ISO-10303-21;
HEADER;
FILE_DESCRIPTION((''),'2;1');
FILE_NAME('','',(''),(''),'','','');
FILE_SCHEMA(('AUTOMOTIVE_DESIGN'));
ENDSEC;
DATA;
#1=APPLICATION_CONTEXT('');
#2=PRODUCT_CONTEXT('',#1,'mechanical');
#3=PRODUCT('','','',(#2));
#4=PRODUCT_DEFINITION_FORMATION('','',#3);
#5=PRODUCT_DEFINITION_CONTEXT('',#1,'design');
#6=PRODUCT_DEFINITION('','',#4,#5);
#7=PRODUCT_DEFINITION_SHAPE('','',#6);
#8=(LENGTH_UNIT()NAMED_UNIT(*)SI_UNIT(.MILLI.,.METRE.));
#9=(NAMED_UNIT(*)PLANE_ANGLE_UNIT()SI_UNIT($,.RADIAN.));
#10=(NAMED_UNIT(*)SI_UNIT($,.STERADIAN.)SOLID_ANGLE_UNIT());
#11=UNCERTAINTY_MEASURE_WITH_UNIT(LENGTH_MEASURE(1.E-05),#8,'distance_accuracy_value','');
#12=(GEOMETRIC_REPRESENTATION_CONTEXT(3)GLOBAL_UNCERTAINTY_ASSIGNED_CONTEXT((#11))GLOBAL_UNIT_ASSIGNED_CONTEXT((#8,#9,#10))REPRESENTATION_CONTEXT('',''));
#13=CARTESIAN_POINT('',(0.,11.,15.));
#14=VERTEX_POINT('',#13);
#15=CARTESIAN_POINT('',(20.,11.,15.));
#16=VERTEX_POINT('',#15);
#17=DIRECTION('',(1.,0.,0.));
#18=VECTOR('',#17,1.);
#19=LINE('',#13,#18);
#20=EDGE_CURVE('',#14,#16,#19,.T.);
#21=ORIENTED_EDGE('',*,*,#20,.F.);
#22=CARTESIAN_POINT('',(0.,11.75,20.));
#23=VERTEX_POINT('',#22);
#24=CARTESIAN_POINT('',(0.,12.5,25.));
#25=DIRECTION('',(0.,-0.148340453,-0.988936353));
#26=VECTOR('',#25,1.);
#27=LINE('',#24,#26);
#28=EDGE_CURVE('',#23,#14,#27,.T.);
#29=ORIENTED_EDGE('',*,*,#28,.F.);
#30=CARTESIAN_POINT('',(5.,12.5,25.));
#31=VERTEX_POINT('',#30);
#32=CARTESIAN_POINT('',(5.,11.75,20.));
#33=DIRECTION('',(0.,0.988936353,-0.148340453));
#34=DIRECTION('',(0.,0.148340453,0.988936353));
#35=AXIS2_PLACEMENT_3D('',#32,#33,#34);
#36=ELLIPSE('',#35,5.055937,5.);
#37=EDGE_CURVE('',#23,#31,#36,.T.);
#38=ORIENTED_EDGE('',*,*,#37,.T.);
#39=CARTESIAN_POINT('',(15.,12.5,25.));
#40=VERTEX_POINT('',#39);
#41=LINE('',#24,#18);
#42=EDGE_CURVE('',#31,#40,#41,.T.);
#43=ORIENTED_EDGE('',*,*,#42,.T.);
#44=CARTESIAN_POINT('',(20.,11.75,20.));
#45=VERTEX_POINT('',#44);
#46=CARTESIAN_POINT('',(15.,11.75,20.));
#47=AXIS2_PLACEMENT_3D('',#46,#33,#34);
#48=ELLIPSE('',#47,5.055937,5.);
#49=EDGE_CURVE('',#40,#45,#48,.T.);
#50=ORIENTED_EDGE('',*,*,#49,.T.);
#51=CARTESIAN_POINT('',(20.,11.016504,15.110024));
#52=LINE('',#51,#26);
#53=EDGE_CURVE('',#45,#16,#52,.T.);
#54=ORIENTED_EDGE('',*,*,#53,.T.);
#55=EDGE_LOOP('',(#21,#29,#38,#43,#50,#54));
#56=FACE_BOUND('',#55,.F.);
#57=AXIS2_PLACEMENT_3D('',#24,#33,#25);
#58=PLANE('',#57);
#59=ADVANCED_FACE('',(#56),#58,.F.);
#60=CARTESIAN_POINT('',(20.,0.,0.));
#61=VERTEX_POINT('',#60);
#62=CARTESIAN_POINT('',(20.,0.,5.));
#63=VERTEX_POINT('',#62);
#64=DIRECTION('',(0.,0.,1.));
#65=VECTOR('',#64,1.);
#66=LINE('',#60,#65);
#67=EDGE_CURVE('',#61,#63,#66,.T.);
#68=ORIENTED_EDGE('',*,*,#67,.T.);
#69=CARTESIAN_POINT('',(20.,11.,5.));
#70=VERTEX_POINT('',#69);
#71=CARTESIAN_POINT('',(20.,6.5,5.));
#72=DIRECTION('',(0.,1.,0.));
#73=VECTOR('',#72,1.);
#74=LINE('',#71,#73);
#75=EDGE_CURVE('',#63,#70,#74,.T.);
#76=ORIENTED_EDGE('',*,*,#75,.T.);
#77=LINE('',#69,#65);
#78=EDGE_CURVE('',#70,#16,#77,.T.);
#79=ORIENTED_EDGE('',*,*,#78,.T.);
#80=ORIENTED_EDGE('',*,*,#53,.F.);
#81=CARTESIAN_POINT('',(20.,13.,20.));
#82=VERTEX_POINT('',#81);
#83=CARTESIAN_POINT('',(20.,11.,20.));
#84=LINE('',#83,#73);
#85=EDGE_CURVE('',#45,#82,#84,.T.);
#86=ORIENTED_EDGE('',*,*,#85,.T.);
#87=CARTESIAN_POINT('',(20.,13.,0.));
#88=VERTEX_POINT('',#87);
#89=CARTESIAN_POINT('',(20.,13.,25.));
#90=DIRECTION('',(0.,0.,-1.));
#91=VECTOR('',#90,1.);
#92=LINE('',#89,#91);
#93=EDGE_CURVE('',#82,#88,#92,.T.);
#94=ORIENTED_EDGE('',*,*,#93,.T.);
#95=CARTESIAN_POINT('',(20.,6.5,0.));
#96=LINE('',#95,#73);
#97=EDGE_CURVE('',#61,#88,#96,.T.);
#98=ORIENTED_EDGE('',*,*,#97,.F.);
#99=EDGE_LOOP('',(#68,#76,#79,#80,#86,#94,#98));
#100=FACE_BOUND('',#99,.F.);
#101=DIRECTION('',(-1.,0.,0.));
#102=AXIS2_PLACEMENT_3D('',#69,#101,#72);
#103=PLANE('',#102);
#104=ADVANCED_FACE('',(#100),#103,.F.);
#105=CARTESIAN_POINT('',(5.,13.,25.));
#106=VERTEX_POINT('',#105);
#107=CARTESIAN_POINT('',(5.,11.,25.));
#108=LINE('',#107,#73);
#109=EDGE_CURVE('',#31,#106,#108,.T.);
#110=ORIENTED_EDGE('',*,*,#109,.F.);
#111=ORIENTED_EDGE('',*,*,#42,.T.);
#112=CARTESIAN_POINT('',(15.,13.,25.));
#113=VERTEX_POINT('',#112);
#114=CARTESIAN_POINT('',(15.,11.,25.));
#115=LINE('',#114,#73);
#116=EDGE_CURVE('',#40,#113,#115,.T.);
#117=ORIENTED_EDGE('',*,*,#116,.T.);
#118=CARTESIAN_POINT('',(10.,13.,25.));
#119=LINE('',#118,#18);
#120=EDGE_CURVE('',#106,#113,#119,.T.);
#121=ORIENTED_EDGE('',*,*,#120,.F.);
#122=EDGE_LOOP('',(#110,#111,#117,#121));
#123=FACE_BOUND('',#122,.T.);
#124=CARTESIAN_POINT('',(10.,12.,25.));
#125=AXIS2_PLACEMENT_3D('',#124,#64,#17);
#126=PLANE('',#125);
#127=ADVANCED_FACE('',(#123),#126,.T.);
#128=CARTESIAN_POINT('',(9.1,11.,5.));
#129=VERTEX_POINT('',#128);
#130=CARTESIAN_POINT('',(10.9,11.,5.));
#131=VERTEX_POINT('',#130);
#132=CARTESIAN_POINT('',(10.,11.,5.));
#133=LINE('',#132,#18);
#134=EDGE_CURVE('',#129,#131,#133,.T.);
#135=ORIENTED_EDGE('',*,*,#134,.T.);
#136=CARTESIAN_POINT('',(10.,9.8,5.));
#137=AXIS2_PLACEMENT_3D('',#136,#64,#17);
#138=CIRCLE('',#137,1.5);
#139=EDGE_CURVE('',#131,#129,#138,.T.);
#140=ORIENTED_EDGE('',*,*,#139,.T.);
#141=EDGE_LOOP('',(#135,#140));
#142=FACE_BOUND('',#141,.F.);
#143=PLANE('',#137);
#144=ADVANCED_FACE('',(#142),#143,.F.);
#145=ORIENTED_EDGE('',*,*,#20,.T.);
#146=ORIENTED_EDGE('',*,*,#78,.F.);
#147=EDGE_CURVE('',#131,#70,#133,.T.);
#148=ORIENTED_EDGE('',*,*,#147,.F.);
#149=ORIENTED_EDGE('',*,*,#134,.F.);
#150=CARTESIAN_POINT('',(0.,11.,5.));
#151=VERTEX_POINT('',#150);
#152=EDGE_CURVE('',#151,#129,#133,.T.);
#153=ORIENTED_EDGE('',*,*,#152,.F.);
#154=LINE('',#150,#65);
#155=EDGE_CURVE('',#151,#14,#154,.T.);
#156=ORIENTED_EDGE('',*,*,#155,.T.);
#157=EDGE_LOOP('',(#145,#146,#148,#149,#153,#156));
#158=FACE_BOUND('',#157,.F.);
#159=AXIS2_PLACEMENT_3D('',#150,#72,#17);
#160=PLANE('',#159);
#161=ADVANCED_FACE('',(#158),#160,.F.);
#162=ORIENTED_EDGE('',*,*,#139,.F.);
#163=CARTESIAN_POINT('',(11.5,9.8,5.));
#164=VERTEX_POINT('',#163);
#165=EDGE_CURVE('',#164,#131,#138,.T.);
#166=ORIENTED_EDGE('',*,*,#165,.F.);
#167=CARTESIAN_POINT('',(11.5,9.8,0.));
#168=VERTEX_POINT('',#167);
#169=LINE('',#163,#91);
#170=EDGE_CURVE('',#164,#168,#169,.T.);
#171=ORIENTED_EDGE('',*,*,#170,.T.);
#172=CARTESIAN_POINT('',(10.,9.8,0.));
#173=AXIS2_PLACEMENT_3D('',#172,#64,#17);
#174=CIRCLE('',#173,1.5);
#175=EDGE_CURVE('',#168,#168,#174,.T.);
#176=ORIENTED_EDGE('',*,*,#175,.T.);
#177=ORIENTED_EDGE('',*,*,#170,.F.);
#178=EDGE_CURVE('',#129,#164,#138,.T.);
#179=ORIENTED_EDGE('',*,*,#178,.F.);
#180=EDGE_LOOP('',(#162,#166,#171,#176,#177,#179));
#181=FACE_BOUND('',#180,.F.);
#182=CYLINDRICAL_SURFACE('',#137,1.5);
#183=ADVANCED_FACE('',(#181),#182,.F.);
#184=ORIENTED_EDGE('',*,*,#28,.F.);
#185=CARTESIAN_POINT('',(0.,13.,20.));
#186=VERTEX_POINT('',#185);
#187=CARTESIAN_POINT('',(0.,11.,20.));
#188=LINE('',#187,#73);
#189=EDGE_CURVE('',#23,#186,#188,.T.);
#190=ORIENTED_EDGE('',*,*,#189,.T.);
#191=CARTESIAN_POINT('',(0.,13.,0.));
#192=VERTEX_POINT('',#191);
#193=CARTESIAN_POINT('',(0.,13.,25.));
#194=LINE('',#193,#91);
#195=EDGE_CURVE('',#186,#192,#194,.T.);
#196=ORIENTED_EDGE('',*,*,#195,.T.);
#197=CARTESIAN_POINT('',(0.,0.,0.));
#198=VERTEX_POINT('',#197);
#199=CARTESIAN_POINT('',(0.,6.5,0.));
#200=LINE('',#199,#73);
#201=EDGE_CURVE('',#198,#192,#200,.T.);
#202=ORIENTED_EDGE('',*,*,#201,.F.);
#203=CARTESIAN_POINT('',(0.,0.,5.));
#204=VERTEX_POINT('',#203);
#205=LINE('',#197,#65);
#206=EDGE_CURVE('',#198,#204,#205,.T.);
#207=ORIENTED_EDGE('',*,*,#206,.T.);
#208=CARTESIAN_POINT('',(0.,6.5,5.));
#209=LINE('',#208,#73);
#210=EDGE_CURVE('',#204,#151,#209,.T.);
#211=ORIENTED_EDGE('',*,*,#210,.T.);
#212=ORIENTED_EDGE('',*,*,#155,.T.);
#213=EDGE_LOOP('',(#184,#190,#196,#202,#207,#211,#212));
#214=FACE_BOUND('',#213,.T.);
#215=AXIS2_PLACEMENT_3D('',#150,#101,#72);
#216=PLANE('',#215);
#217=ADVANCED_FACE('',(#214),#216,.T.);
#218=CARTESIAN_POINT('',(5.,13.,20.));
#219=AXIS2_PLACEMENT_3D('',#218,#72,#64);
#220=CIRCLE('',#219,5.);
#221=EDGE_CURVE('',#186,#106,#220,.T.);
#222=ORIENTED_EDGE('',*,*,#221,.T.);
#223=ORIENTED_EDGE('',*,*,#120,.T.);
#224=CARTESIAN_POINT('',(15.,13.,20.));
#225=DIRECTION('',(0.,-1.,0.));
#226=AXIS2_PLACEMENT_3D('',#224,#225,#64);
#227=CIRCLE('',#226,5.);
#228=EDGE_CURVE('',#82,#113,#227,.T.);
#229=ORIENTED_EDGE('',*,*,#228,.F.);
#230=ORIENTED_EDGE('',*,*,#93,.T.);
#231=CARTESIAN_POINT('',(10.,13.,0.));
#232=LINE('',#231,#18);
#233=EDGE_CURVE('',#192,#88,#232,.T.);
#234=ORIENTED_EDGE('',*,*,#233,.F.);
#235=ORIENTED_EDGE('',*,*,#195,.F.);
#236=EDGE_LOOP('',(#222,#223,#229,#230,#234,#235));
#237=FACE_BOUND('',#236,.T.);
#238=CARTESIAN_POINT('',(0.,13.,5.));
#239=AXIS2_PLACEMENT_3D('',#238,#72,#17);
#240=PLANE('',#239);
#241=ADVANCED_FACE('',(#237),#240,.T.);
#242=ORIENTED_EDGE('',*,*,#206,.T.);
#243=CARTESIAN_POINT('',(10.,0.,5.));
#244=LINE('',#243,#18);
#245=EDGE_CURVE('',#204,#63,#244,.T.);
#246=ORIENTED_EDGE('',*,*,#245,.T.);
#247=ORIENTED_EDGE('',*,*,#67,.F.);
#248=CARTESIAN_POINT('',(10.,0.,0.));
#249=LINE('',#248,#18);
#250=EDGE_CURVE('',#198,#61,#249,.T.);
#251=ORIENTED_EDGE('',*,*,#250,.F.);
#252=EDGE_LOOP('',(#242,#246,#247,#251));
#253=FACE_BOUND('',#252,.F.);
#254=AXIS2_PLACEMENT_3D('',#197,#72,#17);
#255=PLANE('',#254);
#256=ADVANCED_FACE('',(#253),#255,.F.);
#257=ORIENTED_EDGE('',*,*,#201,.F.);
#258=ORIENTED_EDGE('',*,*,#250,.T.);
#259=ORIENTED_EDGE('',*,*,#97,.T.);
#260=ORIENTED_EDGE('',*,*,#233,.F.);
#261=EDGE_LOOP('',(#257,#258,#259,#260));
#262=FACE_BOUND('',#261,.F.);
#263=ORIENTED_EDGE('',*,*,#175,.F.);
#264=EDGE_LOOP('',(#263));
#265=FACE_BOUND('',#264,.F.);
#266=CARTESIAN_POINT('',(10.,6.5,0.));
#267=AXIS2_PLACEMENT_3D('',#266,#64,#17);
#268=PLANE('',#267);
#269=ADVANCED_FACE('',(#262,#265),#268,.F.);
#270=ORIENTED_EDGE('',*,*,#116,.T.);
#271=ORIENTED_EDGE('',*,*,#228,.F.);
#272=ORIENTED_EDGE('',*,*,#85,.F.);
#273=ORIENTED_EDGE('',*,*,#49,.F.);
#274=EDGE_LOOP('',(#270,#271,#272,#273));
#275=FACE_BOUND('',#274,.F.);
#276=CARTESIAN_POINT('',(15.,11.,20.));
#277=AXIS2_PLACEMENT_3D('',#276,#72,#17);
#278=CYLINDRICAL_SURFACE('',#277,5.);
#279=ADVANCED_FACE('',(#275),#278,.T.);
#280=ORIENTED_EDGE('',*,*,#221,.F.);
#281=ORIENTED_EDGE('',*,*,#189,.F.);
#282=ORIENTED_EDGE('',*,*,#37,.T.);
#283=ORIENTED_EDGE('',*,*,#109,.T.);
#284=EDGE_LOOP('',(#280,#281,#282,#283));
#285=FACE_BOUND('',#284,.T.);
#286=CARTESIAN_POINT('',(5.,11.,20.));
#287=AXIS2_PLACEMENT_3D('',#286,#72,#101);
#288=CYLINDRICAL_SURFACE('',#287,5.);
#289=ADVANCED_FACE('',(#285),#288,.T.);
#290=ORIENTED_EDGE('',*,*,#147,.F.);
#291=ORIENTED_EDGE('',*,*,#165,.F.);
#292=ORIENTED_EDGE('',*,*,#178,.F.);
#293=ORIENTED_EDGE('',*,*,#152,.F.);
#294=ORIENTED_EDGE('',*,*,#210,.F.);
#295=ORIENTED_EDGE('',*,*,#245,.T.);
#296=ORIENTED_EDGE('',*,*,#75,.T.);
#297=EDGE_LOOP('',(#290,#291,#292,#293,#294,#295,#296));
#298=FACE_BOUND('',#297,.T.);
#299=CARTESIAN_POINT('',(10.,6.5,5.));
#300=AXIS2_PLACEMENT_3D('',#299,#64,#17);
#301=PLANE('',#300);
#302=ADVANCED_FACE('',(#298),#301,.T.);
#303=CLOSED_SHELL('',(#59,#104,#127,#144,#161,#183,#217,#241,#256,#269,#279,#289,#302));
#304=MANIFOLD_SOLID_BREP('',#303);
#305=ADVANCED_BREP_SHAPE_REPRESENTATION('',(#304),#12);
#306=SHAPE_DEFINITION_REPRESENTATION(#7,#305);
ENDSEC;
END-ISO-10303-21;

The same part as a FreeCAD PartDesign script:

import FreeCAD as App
import Part
import Sketcher
Q = App.Units.Quantity


def edges_at(feature, points):
    """Names of the edges that pass closest to the given points."""
    edges = feature.Shape.Edges
    near = lambda p: min(range(len(edges)), key=lambda i: edges[i].distToShape(Part.Vertex(*p))[0])
    return sorted({f"Edge{near(p) + 1}" for p in points})

doc = App.newDocument("Part")
body = doc.addObject("PartDesign::Body", "Body")

# Sketch on XY plane
sketch1 = body.newObject("Sketcher::SketchObject", "Sketch")
sketch1.AttachmentSupport = (doc.getObject("XY_Plane"), [""])
sketch1.MapMode = "FlatFace"
sketch1.addGeometry([
    Part.LineSegment(App.Vector(0, 13, 0), App.Vector(0, 0, 0)),
    Part.LineSegment(App.Vector(0, 0, 0), App.Vector(20, 0, 0)),
    Part.LineSegment(App.Vector(20, 0, 0), App.Vector(20, 13, 0)),
    Part.LineSegment(App.Vector(20, 13, 0), App.Vector(0, 13, 0)),
], False)
sketch1.addConstraint([
    Sketcher.Constraint("Coincident", 0, 2, 1, 1),
    Sketcher.Constraint("Coincident", 1, 2, 2, 1),
    Sketcher.Constraint("Coincident", 2, 2, 3, 1),
    Sketcher.Constraint("Coincident", 3, 2, 0, 1),
    Sketcher.Constraint("Vertical", 0),
    Sketcher.Constraint("Horizontal", 1),
    Sketcher.Constraint("Vertical", 2),
    Sketcher.Constraint("Horizontal", 3),
    Sketcher.Constraint("Coincident", 0, 2, -1, 1),
    Sketcher.Constraint("DistanceX", 1, 1, 1, 2, Q("20 mm")),
    Sketcher.Constraint("DistanceY", 0, 2, 0, 1, Q("13 mm")),
])
pad1 = body.newObject("PartDesign::Pad", "Pad")
pad1.Profile = sketch1
pad1.Length = 5

# Sketch on XY plane
sketch2 = body.newObject("Sketcher::SketchObject", "Sketch001")
sketch2.AttachmentSupport = (doc.getObject("XY_Plane"), [""])
sketch2.MapMode = "FlatFace"
sketch2.AttachmentOffset = App.Placement(App.Vector(0, 0, 5), App.Rotation())
sketch2.addGeometry([
    Part.LineSegment(App.Vector(0, 13, 0), App.Vector(0, 11, 0)),
    Part.LineSegment(App.Vector(0, 11, 0), App.Vector(20, 11, 0)),
    Part.LineSegment(App.Vector(20, 11, 0), App.Vector(20, 13, 0)),
    Part.LineSegment(App.Vector(20, 13, 0), App.Vector(0, 13, 0)),
], False)
sketch2.addConstraint([
    Sketcher.Constraint("Coincident", 0, 2, 1, 1),
    Sketcher.Constraint("Coincident", 1, 2, 2, 1),
    Sketcher.Constraint("Coincident", 2, 2, 3, 1),
    Sketcher.Constraint("Coincident", 3, 2, 0, 1),
    Sketcher.Constraint("Vertical", 0),
    Sketcher.Constraint("Horizontal", 1),
    Sketcher.Constraint("Vertical", 2),
    Sketcher.Constraint("Horizontal", 3),
    Sketcher.Constraint("PointOnObject", 0, 2, -2),
    Sketcher.Constraint("DistanceX", 1, 1, 1, 2, Q("20 mm")),
    Sketcher.Constraint("DistanceY", 0, 2, 0, 1, Q("2 mm")),
    Sketcher.Constraint("DistanceY", -1, 1, 0, 2, Q("11 mm")),
])
pad2 = body.newObject("PartDesign::Pad", "Pad001")
pad2.Profile = sketch2
pad2.Length = 20
doc.recompute()

fillet = body.newObject("PartDesign::Fillet", "Fillet")
fillet.Base = (pad2, edges_at(pad2, [(0, 12, 25), (20, 12, 25)]))
fillet.Radius = 5

# Sketch on YZ plane
sketch3 = body.newObject("Sketcher::SketchObject", "Sketch002")
sketch3.AttachmentSupport = (doc.getObject("YZ_Plane"), [""])
sketch3.MapMode = "FlatFace"
sketch3.addGeometry([
    Part.LineSegment(App.Vector(11, 25, 0), App.Vector(12.5, 25, 0)),
    Part.LineSegment(App.Vector(12.5, 25, 0), App.Vector(11, 15, 0)),
    Part.LineSegment(App.Vector(11, 15, 0), App.Vector(11, 25, 0)),
], False)
sketch3.addConstraint([
    Sketcher.Constraint("Coincident", 0, 2, 1, 1),
    Sketcher.Constraint("Coincident", 1, 2, 2, 1),
    Sketcher.Constraint("Coincident", 2, 2, 0, 1),
    Sketcher.Constraint("Horizontal", 0),
    Sketcher.Constraint("Vertical", 2),
    Sketcher.Constraint("DistanceY", 2, 1, 2, 2, Q("10 mm")),
    Sketcher.Constraint("DistanceX", 0, 1, 0, 2, Q("1.5 mm")),
    Sketcher.Constraint("DistanceY", -1, 1, 0, 2, Q("25 mm")),
    Sketcher.Constraint("DistanceX", -1, 1, 1, 2, Q("11 mm")),
])
pocket1 = body.newObject("PartDesign::Pocket", "Pocket")
pocket1.Profile = sketch3
pocket1.Length = 25
pocket1.Reversed = True

# Sketch on XY plane
sketch4 = body.newObject("Sketcher::SketchObject", "Sketch003")
sketch4.AttachmentSupport = (doc.getObject("XY_Plane"), [""])
sketch4.MapMode = "FlatFace"
sketch4.AttachmentOffset = App.Placement(App.Vector(0, 0, 5), App.Rotation())
sketch4.addGeometry(Part.Circle(App.Vector(10, 9.8, 0), App.Vector(0, 0, 1), 1.5), False)
sketch4.addConstraint([
    Sketcher.Constraint("Diameter", 0, Q("3 mm")),
    Sketcher.Constraint("DistanceX", -1, 1, 0, 3, Q("10 mm")),
    Sketcher.Constraint("DistanceY", -1, 1, 0, 3, Q("9.8 mm")),
])
pocket2 = body.newObject("PartDesign::Pocket", "Pocket001")
pocket2.Profile = sketch4
pocket2.Length = 25

doc.recompute()
